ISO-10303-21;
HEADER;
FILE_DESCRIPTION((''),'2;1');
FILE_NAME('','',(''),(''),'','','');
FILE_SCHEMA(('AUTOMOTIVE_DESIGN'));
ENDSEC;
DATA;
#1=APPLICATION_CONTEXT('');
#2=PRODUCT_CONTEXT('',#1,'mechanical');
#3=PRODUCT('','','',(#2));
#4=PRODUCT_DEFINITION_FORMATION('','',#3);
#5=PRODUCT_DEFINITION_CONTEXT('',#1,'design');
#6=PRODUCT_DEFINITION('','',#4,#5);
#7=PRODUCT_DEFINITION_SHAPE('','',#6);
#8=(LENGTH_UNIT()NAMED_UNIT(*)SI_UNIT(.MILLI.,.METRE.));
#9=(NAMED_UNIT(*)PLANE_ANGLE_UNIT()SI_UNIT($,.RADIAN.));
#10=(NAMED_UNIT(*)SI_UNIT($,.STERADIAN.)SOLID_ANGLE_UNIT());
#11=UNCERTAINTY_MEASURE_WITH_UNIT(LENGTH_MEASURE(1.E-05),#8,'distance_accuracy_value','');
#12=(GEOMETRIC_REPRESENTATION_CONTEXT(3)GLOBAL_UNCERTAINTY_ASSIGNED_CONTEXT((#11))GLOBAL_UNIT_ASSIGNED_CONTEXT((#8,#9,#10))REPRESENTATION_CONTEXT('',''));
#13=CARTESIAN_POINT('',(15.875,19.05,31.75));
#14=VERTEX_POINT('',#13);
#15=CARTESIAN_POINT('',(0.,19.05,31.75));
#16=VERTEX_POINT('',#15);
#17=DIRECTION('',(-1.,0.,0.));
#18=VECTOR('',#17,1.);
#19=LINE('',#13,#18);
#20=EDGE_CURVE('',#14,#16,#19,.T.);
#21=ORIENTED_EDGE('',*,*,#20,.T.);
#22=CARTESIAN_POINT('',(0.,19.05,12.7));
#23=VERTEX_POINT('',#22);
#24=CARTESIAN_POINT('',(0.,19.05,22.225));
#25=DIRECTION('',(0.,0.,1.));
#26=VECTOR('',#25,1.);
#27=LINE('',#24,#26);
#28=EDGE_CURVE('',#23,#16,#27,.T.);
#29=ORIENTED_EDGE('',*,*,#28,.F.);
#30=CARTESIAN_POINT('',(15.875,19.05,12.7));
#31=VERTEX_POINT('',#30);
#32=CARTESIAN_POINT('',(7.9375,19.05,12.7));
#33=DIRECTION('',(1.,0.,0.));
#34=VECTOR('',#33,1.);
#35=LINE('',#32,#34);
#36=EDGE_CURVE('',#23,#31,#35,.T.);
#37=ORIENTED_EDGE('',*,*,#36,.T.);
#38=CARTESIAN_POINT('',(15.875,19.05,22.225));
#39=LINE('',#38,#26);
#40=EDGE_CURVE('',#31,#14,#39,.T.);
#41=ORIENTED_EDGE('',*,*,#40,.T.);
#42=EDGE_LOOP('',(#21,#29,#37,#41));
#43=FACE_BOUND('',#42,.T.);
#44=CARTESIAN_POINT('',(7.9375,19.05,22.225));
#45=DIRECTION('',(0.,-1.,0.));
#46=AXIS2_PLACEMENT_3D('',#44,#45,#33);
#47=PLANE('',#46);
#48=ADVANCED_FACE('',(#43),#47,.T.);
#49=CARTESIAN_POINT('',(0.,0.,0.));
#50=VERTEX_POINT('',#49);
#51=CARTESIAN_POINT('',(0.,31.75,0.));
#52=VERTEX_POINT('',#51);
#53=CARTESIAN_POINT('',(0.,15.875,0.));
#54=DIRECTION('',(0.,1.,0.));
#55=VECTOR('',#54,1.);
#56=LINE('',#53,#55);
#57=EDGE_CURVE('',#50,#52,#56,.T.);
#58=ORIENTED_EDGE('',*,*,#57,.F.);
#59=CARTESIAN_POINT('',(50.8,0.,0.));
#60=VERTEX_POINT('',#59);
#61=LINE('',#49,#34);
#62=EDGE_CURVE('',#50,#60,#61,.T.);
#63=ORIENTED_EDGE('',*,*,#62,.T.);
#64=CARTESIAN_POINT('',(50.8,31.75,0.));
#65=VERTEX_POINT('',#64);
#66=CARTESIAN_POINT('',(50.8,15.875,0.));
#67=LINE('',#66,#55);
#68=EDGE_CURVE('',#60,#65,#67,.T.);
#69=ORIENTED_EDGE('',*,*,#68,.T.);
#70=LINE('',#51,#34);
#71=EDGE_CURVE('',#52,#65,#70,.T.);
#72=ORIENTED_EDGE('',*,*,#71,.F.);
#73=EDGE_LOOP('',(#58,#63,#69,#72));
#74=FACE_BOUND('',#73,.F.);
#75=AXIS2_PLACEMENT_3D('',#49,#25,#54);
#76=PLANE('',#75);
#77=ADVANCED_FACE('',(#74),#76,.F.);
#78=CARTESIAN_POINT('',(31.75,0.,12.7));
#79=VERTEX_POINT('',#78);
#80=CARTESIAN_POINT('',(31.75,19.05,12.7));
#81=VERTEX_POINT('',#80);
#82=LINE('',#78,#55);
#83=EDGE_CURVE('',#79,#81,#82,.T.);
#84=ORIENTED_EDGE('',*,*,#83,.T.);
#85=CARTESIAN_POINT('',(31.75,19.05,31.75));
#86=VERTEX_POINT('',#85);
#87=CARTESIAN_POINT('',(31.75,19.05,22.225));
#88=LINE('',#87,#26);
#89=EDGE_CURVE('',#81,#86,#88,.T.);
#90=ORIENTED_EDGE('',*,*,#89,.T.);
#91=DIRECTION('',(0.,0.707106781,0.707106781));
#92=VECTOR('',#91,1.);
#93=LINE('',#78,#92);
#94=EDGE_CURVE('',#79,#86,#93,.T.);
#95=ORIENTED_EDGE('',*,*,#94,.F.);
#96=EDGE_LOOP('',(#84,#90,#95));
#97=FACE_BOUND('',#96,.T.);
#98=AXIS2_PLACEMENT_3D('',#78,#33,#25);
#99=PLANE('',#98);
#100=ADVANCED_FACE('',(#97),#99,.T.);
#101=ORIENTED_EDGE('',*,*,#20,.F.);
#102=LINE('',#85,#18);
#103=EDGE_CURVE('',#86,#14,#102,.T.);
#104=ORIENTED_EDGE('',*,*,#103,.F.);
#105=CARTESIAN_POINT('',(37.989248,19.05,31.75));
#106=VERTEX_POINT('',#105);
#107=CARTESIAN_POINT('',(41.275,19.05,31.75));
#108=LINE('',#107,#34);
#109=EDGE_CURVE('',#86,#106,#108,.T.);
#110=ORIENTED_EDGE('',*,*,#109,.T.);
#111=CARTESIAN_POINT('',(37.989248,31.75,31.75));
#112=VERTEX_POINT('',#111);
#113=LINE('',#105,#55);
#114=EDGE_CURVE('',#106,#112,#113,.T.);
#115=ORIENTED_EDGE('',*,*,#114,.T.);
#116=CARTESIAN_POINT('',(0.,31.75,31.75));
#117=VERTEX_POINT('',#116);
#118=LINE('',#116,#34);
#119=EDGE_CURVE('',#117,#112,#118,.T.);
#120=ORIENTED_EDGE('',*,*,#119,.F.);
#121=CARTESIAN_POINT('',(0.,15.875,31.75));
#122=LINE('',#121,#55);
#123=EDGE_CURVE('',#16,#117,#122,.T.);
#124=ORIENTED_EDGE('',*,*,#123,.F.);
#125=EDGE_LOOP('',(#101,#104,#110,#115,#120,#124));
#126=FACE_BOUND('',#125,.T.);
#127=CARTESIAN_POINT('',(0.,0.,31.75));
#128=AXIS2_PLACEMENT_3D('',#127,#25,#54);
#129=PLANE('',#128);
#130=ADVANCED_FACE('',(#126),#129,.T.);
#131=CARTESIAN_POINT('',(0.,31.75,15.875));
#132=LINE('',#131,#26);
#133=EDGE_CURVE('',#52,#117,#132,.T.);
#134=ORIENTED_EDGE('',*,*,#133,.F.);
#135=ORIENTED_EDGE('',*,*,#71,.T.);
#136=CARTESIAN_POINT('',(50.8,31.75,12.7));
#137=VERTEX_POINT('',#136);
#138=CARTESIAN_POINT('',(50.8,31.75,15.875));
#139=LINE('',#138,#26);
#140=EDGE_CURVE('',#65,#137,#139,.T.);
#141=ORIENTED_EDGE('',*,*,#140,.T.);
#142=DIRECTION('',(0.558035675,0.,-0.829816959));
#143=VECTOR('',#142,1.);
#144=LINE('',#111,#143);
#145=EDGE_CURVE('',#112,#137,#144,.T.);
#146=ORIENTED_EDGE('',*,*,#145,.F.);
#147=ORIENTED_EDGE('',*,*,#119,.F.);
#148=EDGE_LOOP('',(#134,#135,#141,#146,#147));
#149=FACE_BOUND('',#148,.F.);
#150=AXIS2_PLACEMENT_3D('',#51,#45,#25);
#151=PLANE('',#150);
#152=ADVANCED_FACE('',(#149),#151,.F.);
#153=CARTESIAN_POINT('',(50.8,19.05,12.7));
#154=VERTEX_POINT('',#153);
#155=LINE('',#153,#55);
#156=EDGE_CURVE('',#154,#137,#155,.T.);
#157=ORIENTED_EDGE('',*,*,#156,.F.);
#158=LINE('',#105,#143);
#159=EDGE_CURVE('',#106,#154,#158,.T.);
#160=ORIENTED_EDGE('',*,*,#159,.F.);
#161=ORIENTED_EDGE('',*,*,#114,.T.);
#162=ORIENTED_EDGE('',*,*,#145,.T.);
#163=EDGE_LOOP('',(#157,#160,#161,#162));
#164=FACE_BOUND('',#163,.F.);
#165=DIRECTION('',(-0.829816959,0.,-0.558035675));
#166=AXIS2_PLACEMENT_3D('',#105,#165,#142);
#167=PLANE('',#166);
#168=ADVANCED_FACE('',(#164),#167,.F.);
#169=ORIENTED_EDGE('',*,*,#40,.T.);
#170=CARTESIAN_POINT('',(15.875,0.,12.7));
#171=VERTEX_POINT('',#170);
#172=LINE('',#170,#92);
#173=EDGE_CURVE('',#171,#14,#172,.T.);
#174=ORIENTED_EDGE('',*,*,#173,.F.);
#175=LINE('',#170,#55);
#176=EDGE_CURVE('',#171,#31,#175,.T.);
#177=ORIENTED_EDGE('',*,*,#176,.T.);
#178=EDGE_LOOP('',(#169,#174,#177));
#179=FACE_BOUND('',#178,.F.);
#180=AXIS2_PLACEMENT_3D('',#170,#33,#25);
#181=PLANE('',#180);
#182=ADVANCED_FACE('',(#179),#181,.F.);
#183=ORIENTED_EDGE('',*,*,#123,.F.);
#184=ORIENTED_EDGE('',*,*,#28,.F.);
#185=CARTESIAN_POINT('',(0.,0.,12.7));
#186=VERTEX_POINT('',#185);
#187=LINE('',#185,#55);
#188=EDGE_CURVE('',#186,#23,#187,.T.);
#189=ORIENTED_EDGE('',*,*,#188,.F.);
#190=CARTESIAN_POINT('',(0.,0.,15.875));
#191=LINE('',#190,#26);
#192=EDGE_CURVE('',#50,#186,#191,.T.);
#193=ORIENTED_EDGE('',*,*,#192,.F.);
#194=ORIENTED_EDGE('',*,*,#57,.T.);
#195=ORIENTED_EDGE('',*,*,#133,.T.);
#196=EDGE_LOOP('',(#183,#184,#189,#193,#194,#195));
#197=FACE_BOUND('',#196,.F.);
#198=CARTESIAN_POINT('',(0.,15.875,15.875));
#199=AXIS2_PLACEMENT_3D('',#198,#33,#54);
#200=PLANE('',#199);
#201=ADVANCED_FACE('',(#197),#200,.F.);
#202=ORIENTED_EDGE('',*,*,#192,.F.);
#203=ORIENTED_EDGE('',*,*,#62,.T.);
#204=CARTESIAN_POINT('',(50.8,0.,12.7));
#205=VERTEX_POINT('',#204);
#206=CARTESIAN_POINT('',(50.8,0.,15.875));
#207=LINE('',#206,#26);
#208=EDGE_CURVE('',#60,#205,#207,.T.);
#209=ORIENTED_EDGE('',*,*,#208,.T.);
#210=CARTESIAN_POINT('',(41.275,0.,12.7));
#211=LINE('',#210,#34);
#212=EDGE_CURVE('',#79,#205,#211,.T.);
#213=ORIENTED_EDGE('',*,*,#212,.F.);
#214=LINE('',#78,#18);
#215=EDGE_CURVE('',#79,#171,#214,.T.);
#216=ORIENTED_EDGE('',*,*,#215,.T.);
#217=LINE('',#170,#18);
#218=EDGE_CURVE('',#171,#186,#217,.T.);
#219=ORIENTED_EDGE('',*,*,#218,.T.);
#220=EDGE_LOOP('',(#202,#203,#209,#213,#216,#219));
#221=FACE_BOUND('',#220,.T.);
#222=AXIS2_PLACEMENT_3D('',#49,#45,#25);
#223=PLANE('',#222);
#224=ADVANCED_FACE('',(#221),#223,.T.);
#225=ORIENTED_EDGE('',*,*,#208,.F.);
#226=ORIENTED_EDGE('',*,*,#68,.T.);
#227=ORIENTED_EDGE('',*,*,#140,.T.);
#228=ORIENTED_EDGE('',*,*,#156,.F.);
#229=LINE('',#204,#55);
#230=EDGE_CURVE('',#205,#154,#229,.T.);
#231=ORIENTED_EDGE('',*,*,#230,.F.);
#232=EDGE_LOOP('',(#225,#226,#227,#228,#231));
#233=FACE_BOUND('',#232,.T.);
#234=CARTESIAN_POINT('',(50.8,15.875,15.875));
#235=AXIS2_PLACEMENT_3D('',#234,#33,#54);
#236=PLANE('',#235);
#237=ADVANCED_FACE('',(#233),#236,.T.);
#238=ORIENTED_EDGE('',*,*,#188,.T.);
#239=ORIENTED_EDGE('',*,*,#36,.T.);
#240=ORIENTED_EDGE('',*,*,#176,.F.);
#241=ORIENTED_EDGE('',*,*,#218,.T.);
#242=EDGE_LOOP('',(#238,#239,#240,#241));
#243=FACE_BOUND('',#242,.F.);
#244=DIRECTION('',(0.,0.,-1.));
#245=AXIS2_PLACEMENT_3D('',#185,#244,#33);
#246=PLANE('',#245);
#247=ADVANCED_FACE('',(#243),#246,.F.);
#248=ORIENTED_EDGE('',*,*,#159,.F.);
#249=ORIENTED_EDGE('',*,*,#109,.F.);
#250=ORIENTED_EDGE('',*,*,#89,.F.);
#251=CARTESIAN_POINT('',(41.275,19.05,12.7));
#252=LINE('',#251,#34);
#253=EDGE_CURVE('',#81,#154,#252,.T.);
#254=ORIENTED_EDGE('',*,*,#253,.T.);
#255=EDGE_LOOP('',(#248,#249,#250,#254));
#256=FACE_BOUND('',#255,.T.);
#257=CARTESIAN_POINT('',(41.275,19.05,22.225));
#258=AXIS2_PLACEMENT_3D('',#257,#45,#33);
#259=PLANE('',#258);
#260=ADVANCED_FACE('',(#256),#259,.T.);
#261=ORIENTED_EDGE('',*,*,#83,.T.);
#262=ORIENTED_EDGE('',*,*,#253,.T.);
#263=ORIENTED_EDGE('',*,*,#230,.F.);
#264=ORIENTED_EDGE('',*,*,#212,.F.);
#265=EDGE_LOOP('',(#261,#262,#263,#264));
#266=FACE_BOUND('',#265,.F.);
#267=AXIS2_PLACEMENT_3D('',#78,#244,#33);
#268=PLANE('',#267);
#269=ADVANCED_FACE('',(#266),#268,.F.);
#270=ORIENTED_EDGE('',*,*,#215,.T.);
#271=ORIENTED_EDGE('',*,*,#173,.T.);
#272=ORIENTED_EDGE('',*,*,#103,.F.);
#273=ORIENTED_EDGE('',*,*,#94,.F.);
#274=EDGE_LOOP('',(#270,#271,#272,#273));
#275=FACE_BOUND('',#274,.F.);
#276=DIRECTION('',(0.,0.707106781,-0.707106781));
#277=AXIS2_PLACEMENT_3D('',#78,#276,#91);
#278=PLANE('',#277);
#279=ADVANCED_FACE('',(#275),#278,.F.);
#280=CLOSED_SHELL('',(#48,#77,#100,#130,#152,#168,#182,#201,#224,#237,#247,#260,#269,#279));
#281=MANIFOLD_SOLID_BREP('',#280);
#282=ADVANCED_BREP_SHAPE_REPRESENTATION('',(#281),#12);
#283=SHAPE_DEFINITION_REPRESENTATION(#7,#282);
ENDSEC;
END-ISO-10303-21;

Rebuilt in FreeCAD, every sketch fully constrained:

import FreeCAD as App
import Part
import Sketcher
Q = App.Units.Quantity

doc = App.newDocument("Part")
params = doc.addObject("Spreadsheet::Sheet", "Params")
for row, (alias, value) in enumerate([
    ("sketch1_width", "1.25 in"),
    ("pad1_length", "2 in"),
    ("sketch2_width", "0.75 in"),
    ("pocket1_length", "0.75 in"),
    ("sketch3_height", "0.75 in"),
    ("sketch3_width", "0.625 in"),
    ("pocket2_length", "0.75 in"),
    ("sketch4_width", "0.75 in"),
    ("pocket3_length", "1 in"),
    ("sketch5_height", "0.75 in"),
    ("pocket4_length", "0.5 in"),
], start=1):
    params.set(f"A{row}", alias)
    params.set(f"B{row}", "=" + value)
    params.setAlias(f"B{row}", alias)

body = doc.addObject("PartDesign::Body", "Body")

# Sketch on YZ plane
sketch1 = doc.addObject("Sketcher::SketchObject", "Sketch")
body.addObject(sketch1)
sketch1.AttachmentSupport = (doc.YZ_Plane, [""])
sketch1.MapMode = "FlatFace"
sketch1.addGeometry([
    Part.LineSegment(App.Vector(0, 32, 0), App.Vector(0, 0, 0)),
    Part.LineSegment(App.Vector(0, 0, 0), App.Vector(32, 0, 0)),
    Part.LineSegment(App.Vector(32, 0, 0), App.Vector(32, 32, 0)),
    Part.LineSegment(App.Vector(32, 32, 0), App.Vector(0, 32, 0)),
], False)
sketch1.addConstraint([
    Sketcher.Constraint("Coincident", 0, 2, 1, 1),
    Sketcher.Constraint("Coincident", 1, 2, 2, 1),
    Sketcher.Constraint("Coincident", 2, 2, 3, 1),
    Sketcher.Constraint("Coincident", 3, 2, 0, 1),
    Sketcher.Constraint("Vertical", 0),
    Sketcher.Constraint("Horizontal", 1),
    Sketcher.Constraint("Vertical", 2),
    Sketcher.Constraint("Horizontal", 3),
    Sketcher.Constraint("Coincident", 0, 2, -1, 1),
    Sketcher.Constraint("Equal", 3, 0),
    Sketcher.Constraint("DistanceX", 1, 1, 1, 2, Q("1.25 in")),
])
sketch1.setExpression("Constraints[10]", "Params.sketch1_width")
pad1 = doc.addObject("PartDesign::Pad", "Pad")
body.addObject(pad1)
pad1.Profile = sketch1
pad1.setExpression("Length", "Params.pad1_length")

# Sketch on XZ plane
sketch2 = doc.addObject("Sketcher::SketchObject", "Sketch001")
body.addObject(sketch2)
sketch2.AttachmentSupport = (doc.XZ_Plane, [""])
sketch2.MapMode = "FlatFace"
sketch2.addGeometry([
    Part.LineSegment(App.Vector(32, 32, 0), App.Vector(32, 13, 0)),
    Part.LineSegment(App.Vector(32, 13, 0), App.Vector(51, 13, 0)),
    Part.LineSegment(App.Vector(51, 13, 0), App.Vector(51, 32, 0)),
    Part.LineSegment(App.Vector(51, 32, 0), App.Vector(32, 32, 0)),
], False)
sketch2.addConstraint([
    Sketcher.Constraint("Coincident", 0, 2, 1, 1),
    Sketcher.Constraint("Coincident", 1, 2, 2, 1),
    Sketcher.Constraint("Coincident", 2, 2, 3, 1),
    Sketcher.Constraint("Coincident", 3, 2, 0, 1),
    Sketcher.Constraint("Vertical", 0),
    Sketcher.Constraint("Horizontal", 1),
    Sketcher.Constraint("Vertical", 2),
    Sketcher.Constraint("Horizontal", 3),
    Sketcher.Constraint("Equal", 3, 0),
    Sketcher.Constraint("DistanceX", -1, 1, 1, 2, Q("2 in")),
    Sketcher.Constraint("DistanceX", 1, 1, 1, 2, Q("0.75 in")),
    Sketcher.Constraint("DistanceY", -1, 1, 0, 2, Q("0.5 in")),
])
sketch2.setExpression("Constraints[10]", "Params.sketch2_width")
pocket1 = doc.addObject("PartDesign::Pocket", "Pocket")
body.addObject(pocket1)
pocket1.Profile = sketch2
pocket1.setExpression("Length", "Params.pocket1_length")

# Sketch on XZ plane
sketch3 = doc.addObject("Sketcher::SketchObject", "Sketch002")
body.addObject(sketch3)
sketch3.AttachmentSupport = (doc.XZ_Plane, [""])
sketch3.MapMode = "FlatFace"
sketch3.addGeometry([
    Part.LineSegment(App.Vector(0, 32, 0), App.Vector(0, 13, 0)),
    Part.LineSegment(App.Vector(0, 13, 0), App.Vector(16, 13, 0)),
    Part.LineSegment(App.Vector(16, 13, 0), App.Vector(16, 32, 0)),
    Part.LineSegment(App.Vector(16, 32, 0), App.Vector(0, 32, 0)),
], False)
sketch3.addConstraint([
    Sketcher.Constraint("Coincident", 0, 2, 1, 1),
    Sketcher.Constraint("Coincident", 1, 2, 2, 1),
    Sketcher.Constraint("Coincident", 2, 2, 3, 1),
    Sketcher.Constraint("Coincident", 3, 2, 0, 1),
    Sketcher.Constraint("Vertical", 0),
    Sketcher.Constraint("Horizontal", 1),
    Sketcher.Constraint("Vertical", 2),
    Sketcher.Constraint("Horizontal", 3),
    Sketcher.Constraint("PointOnObject", 0, 2, -2),
    Sketcher.Constraint("DistanceY", 0, 2, 0, 1, Q("0.75 in")),
    Sketcher.Constraint("DistanceY", -1, 1, 0, 2, Q("0.5 in")),
    Sketcher.Constraint("DistanceX", 1, 1, 1, 2, Q("0.625 in")),
])
sketch3.setExpression("Constraints[9]", "Params.sketch3_height")
sketch3.setExpression("Constraints[11]", "Params.sketch3_width")
pocket2 = doc.addObject("PartDesign::Pocket", "Pocket001")
body.addObject(pocket2)
pocket2.Profile = sketch3
pocket2.setExpression("Length", "Params.pocket2_length")

# Sketch on YZ plane
sketch4 = doc.addObject("Sketcher::SketchObject", "Sketch003")
body.addObject(sketch4)
sketch4.AttachmentSupport = (doc.YZ_Plane, [""])
sketch4.MapMode = "FlatFace"
sketch4.AttachmentOffset = App.Placement(App.Vector(0, 0, 1.25 * 25.4), App.Rotation())
sketch4.addGeometry([
    Part.LineSegment(App.Vector(0, 32, 0), App.Vector(0, 13, 0)),
    Part.LineSegment(App.Vector(0, 13, 0), App.Vector(19, 32, 0)),
    Part.LineSegment(App.Vector(19, 32, 0), App.Vector(0, 32, 0)),
], False)
sketch4.addConstraint([
    Sketcher.Constraint("Coincident", 0, 2, 1, 1),
    Sketcher.Constraint("Coincident", 1, 2, 2, 1),
    Sketcher.Constraint("Coincident", 2, 2, 0, 1),
    Sketcher.Constraint("Vertical", 0),
    Sketcher.Constraint("Horizontal", 2),
    Sketcher.Constraint("PointOnObject", 0, 2, -2),
    Sketcher.Constraint("Equal", 2, 0),
    Sketcher.Constraint("DistanceX", 2, 2, 2, 1, Q("0.75 in")),
    Sketcher.Constraint("DistanceY", -1, 1, 0, 2, Q("0.5 in")),
])
sketch4.setExpression("Constraints[7]", "Params.sketch4_width")
pocket3 = doc.addObject("PartDesign::Pocket", "Pocket002")
body.addObject(pocket3)
pocket3.Profile = sketch4
pocket3.setExpression("Length", "Params.pocket3_length")

# Sketch on XZ plane
sketch5 = doc.addObject("Sketcher::SketchObject", "Sketch004")
body.addObject(sketch5)
sketch5.AttachmentSupport = (doc.XZ_Plane, [""])
sketch5.MapMode = "FlatFace"
sketch5.AttachmentOffset = App.Placement(App.Vector(0, 0, -0.75 * 25.4), App.Rotation())
sketch5.addGeometry([
    Part.LineSegment(App.Vector(51, 13, 0), App.Vector(51, 32, 0)),
    Part.LineSegment(App.Vector(51, 32, 0), App.Vector(38, 32, 0)),
    Part.LineSegment(App.Vector(38, 32, 0), App.Vector(51, 13, 0)),
], False)
sketch5.addConstraint([
    Sketcher.Constraint("Coincident", 0, 2, 1, 1),
    Sketcher.Constraint("Coincident", 1, 2, 2, 1),
    Sketcher.Constraint("Coincident", 2, 2, 0, 1),
    Sketcher.Constraint("Vertical", 0),
    Sketcher.Constraint("Horizontal", 1),
    Sketcher.Constraint("DistanceX", -1, 1, 0, 2, Q("2 in")),
    Sketcher.Constraint("DistanceY", 0, 1, 0, 2, Q("0.75 in")),
    Sketcher.Constraint("DistanceY", -1, 1, 2, 2, Q("0.5 in")),
    Sketcher.Constraint("Distance", 2, 22.95687),
])
sketch5.setExpression("Constraints[6]", "Params.sketch5_height")
pocket4 = doc.addObject("PartDesign::Pocket", "Pocket003")
body.addObject(pocket4)
pocket4.Profile = sketch5
pocket4.setExpression("Length", "Params.pocket4_length")

doc.recompute()
